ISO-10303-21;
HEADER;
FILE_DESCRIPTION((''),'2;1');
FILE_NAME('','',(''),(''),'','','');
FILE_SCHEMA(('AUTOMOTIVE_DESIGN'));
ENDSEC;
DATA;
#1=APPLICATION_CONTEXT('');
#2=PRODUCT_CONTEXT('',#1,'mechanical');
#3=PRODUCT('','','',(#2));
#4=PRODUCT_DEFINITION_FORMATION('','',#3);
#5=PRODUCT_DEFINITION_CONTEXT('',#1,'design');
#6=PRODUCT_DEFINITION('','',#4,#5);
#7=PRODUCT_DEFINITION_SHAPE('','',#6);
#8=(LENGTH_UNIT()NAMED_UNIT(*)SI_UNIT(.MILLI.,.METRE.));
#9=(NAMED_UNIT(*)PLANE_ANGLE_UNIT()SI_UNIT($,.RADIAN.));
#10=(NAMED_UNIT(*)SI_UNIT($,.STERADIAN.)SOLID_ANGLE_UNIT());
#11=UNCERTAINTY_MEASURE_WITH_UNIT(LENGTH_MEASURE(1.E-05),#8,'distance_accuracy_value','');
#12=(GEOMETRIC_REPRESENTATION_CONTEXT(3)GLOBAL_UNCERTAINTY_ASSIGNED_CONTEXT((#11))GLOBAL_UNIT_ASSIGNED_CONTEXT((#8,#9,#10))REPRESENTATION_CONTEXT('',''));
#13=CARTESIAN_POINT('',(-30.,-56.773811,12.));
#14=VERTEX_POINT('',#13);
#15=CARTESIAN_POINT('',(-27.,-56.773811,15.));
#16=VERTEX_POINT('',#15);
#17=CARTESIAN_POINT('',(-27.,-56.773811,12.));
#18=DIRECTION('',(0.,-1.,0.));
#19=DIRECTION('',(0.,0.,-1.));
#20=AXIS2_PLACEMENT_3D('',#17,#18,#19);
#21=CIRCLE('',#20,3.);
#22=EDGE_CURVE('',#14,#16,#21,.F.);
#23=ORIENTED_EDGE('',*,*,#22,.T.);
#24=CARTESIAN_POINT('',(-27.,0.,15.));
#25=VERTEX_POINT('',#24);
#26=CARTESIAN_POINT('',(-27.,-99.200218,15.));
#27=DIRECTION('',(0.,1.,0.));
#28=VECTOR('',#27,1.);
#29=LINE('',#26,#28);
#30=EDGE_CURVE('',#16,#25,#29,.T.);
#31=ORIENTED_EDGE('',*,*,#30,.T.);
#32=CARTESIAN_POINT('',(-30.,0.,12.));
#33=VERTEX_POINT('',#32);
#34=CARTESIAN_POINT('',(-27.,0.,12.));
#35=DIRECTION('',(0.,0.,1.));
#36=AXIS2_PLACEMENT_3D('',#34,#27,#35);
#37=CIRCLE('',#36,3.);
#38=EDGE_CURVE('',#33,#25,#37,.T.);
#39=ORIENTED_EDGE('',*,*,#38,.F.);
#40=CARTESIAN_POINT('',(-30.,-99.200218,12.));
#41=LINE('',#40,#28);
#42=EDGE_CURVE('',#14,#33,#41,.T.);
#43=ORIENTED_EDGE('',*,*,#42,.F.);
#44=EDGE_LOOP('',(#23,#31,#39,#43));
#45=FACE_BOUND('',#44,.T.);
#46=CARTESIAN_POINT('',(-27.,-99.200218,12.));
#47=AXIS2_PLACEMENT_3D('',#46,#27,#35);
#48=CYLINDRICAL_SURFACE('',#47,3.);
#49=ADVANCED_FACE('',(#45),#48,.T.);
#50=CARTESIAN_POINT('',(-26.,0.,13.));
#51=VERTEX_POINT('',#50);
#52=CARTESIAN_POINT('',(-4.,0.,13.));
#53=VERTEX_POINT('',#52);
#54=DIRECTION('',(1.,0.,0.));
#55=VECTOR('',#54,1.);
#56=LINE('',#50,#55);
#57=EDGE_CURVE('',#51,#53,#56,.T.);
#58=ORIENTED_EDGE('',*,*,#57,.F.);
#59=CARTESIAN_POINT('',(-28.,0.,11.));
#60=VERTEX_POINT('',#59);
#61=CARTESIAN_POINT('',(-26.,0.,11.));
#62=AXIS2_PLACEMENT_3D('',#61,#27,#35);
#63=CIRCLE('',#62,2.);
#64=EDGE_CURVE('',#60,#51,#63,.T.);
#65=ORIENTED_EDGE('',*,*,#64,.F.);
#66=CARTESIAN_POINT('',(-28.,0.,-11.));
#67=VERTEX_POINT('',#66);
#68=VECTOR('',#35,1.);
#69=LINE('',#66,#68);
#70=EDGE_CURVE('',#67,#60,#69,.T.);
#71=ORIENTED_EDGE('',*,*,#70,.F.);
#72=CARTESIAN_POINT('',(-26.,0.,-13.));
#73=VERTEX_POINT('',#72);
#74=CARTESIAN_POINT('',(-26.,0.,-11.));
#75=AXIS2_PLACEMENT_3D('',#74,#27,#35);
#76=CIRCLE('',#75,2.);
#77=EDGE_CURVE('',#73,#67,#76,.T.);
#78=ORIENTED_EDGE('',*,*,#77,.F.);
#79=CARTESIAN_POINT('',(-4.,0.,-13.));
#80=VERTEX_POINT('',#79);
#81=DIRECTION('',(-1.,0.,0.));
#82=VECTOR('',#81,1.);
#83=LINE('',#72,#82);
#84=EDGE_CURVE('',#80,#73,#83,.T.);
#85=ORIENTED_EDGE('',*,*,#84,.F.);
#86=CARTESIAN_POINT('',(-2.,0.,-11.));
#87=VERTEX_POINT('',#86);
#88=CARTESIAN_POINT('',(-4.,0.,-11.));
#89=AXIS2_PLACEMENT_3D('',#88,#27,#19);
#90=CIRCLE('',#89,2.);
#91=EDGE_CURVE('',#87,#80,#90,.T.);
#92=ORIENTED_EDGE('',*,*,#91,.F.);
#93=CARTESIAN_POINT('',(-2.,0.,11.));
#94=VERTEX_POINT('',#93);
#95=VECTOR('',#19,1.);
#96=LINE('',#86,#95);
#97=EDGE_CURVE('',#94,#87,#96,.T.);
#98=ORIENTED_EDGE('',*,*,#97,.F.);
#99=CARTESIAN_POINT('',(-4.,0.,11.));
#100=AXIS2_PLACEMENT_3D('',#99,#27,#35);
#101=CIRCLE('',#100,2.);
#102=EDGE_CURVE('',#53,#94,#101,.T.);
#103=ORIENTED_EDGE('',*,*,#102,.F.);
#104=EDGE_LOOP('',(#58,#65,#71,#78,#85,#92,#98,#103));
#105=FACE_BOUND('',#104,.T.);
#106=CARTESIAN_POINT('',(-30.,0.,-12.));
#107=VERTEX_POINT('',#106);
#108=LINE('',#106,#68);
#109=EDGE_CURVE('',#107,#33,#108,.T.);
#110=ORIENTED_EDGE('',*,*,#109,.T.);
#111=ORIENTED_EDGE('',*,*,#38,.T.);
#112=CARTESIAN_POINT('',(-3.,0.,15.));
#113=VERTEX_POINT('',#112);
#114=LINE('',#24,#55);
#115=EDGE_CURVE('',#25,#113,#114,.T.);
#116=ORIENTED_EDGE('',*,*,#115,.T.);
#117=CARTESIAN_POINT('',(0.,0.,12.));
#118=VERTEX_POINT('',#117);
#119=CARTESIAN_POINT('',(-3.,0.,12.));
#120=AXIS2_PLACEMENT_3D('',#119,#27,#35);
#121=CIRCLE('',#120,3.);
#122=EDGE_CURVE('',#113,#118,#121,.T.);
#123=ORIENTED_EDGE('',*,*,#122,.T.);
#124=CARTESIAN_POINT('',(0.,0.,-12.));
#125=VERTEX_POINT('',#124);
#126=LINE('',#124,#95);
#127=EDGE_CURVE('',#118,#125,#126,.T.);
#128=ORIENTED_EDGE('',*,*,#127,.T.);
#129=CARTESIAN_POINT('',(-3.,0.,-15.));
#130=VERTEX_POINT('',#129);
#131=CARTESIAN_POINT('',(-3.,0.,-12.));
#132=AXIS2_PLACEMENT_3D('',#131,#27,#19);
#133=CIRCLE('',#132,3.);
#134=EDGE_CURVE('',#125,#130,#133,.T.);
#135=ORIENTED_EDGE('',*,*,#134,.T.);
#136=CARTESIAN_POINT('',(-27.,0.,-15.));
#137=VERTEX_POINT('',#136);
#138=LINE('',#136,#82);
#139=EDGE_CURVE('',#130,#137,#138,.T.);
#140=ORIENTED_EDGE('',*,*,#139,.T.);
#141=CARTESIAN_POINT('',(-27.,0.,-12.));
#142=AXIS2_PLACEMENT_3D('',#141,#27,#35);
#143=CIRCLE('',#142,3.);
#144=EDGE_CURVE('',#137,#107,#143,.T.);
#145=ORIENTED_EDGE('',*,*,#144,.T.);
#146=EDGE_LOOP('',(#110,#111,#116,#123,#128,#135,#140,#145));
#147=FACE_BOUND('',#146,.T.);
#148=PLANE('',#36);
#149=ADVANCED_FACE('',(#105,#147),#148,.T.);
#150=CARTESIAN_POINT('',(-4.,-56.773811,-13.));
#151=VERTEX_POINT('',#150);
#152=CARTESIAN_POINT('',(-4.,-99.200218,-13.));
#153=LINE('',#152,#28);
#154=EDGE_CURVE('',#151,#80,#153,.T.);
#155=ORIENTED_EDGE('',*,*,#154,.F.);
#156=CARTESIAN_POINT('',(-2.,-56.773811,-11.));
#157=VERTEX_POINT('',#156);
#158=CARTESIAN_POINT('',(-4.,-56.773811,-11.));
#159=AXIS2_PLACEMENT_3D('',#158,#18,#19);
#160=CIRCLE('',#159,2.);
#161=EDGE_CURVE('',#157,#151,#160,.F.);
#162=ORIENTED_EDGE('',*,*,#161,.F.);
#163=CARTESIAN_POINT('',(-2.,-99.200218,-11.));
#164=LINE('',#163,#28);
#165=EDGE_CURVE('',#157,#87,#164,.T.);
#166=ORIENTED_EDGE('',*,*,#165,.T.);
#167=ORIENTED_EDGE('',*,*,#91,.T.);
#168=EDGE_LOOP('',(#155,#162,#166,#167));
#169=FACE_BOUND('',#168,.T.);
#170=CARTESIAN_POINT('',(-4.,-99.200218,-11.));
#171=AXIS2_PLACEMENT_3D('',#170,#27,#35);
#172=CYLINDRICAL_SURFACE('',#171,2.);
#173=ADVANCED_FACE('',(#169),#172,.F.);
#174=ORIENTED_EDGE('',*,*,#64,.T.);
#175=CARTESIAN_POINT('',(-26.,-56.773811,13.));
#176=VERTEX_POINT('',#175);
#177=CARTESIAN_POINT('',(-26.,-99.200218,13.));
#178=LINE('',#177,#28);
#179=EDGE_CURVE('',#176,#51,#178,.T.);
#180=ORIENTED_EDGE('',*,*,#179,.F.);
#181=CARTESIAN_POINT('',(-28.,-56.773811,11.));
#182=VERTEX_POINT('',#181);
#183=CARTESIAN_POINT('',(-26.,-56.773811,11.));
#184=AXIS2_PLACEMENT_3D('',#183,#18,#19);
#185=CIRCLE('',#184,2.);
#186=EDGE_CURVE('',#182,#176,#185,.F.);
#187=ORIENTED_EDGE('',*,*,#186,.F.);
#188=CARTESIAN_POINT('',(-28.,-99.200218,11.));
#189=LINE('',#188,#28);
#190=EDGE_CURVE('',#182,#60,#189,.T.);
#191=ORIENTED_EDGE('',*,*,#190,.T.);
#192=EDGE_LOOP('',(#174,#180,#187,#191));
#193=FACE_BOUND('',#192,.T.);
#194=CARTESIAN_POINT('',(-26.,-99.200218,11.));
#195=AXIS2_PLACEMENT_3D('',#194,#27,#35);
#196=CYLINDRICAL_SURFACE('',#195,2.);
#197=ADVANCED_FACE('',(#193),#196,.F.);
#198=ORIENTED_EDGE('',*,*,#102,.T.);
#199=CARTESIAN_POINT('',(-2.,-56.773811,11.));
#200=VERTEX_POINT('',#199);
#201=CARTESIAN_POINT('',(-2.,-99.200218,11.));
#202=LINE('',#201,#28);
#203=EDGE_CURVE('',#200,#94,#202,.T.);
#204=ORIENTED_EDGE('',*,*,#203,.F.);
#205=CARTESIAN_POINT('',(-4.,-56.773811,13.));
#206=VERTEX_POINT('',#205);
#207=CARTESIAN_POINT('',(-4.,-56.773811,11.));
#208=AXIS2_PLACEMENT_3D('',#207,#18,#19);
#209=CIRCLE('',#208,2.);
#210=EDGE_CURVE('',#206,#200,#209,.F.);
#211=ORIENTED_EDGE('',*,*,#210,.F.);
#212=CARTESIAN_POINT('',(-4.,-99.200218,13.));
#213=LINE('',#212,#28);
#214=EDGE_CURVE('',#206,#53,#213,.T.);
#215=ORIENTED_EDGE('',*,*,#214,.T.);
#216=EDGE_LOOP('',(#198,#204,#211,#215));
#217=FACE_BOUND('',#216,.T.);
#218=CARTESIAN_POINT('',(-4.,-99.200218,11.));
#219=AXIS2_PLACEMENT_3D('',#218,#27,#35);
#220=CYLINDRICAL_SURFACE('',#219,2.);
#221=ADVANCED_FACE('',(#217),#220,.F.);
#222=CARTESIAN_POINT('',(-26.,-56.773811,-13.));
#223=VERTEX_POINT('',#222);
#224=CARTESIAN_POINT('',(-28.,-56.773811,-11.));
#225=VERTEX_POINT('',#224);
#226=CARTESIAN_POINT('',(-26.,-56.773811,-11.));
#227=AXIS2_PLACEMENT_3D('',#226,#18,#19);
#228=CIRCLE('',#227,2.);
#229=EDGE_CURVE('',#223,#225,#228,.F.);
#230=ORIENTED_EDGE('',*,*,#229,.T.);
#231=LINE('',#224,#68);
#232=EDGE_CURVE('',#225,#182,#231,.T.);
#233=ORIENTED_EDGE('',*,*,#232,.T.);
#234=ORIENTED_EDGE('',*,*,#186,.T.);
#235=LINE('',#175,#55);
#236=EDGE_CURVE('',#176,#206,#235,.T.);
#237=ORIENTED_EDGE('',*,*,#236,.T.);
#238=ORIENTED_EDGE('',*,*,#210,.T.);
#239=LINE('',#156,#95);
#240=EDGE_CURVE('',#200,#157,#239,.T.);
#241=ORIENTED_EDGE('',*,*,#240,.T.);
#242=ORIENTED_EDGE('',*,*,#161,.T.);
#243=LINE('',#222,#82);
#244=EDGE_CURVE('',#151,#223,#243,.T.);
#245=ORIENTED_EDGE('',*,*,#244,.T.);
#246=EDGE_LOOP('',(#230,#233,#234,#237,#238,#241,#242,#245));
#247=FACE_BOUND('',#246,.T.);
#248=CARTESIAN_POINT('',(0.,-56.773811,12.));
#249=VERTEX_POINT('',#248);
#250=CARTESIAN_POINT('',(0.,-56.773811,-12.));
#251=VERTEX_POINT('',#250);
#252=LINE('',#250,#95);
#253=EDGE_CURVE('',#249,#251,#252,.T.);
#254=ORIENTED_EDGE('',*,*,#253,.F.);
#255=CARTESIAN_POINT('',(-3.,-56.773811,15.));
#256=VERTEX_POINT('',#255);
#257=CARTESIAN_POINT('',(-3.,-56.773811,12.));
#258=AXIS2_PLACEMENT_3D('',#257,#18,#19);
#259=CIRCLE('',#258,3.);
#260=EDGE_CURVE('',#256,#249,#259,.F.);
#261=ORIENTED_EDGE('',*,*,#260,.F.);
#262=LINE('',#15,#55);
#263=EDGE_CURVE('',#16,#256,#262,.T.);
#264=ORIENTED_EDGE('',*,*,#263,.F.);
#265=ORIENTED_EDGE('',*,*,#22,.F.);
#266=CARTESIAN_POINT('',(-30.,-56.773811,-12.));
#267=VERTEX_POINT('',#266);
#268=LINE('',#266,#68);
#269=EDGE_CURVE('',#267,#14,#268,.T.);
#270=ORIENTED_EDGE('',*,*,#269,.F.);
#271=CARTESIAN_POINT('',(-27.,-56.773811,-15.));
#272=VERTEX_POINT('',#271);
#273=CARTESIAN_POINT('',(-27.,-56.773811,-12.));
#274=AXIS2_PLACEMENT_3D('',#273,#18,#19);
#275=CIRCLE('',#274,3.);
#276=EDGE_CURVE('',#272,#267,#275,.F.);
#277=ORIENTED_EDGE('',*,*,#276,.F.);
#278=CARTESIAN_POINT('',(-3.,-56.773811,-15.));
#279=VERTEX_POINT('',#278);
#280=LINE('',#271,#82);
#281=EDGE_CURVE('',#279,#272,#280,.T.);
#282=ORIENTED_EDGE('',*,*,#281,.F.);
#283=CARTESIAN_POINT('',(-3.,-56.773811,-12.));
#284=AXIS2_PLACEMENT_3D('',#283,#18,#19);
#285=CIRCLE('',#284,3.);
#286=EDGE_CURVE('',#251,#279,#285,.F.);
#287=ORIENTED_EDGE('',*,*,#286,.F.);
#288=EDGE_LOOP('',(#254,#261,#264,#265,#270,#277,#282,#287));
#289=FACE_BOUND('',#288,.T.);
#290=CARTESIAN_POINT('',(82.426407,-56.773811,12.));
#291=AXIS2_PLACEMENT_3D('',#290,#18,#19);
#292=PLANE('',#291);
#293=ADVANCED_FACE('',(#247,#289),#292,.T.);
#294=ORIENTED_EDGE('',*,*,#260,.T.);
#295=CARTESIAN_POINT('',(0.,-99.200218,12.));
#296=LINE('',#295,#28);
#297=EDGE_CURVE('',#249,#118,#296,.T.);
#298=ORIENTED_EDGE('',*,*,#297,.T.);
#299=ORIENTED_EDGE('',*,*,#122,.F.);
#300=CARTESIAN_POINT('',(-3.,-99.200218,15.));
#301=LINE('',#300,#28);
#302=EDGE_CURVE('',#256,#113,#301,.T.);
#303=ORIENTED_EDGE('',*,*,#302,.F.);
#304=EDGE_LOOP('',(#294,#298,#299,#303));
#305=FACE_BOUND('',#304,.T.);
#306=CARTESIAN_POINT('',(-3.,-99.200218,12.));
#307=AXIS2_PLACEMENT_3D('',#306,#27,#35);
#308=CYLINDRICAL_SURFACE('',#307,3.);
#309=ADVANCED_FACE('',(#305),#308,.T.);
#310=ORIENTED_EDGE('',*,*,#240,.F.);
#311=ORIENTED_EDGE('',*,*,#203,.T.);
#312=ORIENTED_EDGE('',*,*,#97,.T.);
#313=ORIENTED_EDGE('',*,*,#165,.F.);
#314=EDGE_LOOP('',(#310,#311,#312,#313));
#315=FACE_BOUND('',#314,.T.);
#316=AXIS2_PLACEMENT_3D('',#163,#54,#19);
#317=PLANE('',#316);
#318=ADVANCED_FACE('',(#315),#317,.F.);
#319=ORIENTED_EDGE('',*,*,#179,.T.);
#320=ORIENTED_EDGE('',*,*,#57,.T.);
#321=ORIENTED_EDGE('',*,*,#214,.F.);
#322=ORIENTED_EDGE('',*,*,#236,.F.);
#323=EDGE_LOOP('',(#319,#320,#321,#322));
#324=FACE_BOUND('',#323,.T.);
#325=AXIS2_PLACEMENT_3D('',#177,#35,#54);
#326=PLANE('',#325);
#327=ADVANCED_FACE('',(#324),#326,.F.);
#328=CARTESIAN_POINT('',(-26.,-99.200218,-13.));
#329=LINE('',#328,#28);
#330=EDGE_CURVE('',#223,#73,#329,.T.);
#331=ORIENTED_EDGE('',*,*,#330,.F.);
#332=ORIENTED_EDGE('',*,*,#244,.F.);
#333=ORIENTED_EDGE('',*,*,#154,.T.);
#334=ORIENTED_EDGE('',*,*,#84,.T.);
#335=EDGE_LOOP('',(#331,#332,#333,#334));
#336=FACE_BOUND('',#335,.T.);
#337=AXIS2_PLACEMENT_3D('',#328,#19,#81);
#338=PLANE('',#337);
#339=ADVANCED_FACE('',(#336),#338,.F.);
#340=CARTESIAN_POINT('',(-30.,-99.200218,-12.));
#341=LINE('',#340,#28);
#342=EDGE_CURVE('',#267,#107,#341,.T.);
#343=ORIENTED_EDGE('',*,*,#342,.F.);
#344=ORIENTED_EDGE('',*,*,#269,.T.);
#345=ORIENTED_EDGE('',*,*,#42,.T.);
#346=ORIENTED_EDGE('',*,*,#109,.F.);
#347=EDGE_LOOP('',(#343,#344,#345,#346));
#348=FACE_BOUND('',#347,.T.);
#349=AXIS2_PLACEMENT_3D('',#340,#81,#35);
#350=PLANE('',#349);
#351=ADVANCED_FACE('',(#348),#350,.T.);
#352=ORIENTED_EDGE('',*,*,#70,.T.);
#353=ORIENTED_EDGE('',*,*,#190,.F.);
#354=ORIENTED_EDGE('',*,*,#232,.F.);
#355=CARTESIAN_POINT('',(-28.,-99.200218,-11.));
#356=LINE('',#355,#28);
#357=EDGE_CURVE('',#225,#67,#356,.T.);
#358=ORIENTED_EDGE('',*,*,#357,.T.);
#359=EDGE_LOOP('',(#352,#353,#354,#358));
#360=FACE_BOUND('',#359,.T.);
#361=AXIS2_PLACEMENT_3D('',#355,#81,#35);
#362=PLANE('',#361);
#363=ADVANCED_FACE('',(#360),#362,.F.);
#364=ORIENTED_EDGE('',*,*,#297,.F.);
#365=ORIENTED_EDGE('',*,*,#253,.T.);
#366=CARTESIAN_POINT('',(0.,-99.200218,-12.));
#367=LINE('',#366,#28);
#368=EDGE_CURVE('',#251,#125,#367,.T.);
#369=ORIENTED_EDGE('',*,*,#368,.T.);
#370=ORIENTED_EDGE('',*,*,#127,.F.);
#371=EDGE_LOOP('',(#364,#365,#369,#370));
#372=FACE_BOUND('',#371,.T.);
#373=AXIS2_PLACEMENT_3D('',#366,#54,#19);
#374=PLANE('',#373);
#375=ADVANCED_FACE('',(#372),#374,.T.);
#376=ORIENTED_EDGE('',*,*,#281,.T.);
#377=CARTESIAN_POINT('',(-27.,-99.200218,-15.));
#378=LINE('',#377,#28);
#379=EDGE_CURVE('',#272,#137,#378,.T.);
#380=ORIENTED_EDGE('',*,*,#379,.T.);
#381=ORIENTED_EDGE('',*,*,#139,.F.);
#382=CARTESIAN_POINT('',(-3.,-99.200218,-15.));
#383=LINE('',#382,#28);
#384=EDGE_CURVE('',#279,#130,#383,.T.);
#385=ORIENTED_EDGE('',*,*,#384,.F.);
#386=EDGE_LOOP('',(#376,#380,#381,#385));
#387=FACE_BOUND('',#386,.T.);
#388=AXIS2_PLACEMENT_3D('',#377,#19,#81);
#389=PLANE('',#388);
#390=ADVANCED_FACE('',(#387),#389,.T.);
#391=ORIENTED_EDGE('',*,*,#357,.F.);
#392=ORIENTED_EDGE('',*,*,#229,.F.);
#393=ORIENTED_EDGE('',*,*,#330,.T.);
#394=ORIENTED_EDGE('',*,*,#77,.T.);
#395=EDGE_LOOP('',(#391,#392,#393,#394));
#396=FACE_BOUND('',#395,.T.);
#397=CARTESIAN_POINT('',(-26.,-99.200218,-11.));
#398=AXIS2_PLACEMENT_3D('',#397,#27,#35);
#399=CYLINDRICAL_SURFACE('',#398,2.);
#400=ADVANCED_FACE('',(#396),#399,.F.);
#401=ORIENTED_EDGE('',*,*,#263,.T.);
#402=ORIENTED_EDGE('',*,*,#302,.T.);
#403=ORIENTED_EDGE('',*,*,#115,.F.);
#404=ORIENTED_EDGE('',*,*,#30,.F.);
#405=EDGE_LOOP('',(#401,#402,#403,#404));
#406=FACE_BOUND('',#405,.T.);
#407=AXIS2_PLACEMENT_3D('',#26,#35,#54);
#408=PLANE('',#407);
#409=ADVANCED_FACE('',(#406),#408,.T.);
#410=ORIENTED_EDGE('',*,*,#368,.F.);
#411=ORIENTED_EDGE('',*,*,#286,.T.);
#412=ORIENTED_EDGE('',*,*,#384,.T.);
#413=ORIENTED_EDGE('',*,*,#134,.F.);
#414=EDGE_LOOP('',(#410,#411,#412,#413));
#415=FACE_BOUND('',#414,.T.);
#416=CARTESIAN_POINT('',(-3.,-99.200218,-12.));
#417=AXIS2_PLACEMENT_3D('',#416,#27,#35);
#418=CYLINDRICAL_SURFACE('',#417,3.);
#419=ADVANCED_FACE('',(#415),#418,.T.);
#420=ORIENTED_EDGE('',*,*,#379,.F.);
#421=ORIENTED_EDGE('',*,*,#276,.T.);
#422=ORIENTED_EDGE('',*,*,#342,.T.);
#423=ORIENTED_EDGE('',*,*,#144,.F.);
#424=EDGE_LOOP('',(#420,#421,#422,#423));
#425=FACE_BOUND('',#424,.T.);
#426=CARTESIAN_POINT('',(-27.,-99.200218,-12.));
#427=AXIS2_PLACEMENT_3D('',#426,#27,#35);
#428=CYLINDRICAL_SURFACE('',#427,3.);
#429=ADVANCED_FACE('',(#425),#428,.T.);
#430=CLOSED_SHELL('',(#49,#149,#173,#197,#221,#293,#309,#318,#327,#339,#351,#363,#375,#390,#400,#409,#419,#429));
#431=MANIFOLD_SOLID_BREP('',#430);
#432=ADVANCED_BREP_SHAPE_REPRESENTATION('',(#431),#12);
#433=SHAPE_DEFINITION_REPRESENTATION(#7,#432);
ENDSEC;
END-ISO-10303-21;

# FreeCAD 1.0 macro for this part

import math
import FreeCAD as App
import Part
import Sketcher

doc = App.newDocument("Part")
body = doc.addObject("PartDesign::Body", "Body")

sketch1 = body.newObject("Sketcher::SketchObject", "Sketch")
sketch1.AttachmentSupport = (doc.getObject("XZ_Plane"), [""])
sketch1.MapMode = "FlatFace"
sketch1.addGeometry(Part.LineSegment(App.Vector(-3, -15, 0), App.Vector(-27, -15, 0)), False)
sketch1.addGeometry(Part.ArcOfCircle(Part.Circle(App.Vector(-27, -12, 0), App.Vector(0, 0, 1), 3), math.radians(180), math.radians(270)), False)
sketch1.addGeometry(Part.LineSegment(App.Vector(-30, -12, 0), App.Vector(-30, 12, 0)), False)
sketch1.addGeometry(Part.ArcOfCircle(Part.Circle(App.Vector(-27, 12, 0), App.Vector(0, 0, 1), 3), math.radians(90), math.radians(180)), False)
sketch1.addGeometry(Part.LineSegment(App.Vector(-27, 15, 0), App.Vector(-3, 15, 0)), False)
sketch1.addGeometry(Part.ArcOfCircle(Part.Circle(App.Vector(-3, 12, 0), App.Vector(0, 0, 1), 3), math.radians(0), math.radians(90)), False)
sketch1.addGeometry(Part.LineSegment(App.Vector(0, 12, 0), App.Vector(0, -12, 0)), False)
sketch1.addGeometry(Part.ArcOfCircle(Part.Circle(App.Vector(-3, -12, 0), App.Vector(0, 0, 1), 3), math.radians(-90), math.radians(0)), False)
sketch1.addGeometry(Part.LineSegment(App.Vector(-26, -13, 0), App.Vector(-4, -13, 0)), False)
sketch1.addGeometry(Part.ArcOfCircle(Part.Circle(App.Vector(-4, -11, 0), App.Vector(0, 0, 1), 2), math.radians(-90), math.radians(0)), False)
sketch1.addGeometry(Part.LineSegment(App.Vector(-2, -11, 0), App.Vector(-2, 11, 0)), False)
sketch1.addGeometry(Part.ArcOfCircle(Part.Circle(App.Vector(-4, 11, 0), App.Vector(0, 0, 1), 2), math.radians(0), math.radians(90)), False)
sketch1.addGeometry(Part.LineSegment(App.Vector(-4, 13, 0), App.Vector(-26, 13, 0)), False)
sketch1.addGeometry(Part.ArcOfCircle(Part.Circle(App.Vector(-26, 11, 0), App.Vector(0, 0, 1), 2), math.radians(90), math.radians(180)), False)
sketch1.addGeometry(Part.LineSegment(App.Vector(-28, 11, 0), App.Vector(-28, -11, 0)), False)
sketch1.addGeometry(Part.ArcOfCircle(Part.Circle(App.Vector(-26, -11, 0), App.Vector(0, 0, 1), 2), math.radians(-180), math.radians(-90)), False)
sketch1.addConstraint(Sketcher.Constraint("Tangent", 0, 2, 1, 2))
sketch1.addConstraint(Sketcher.Constraint("Tangent", 1, 1, 2, 1))
sketch1.addConstraint(Sketcher.Constraint("Tangent", 2, 2, 3, 2))
sketch1.addConstraint(Sketcher.Constraint("Tangent", 3, 1, 4, 1))
sketch1.addConstraint(Sketcher.Constraint("Tangent", 4, 2, 5, 2))
sketch1.addConstraint(Sketcher.Constraint("Tangent", 5, 1, 6, 1))
sketch1.addConstraint(Sketcher.Constraint("Tangent", 6, 2, 7, 2))
sketch1.addConstraint(Sketcher.Constraint("Tangent", 7, 1, 0, 1))
sketch1.addConstraint(Sketcher.Constraint("Tangent", 8, 2, 9, 1))
sketch1.addConstraint(Sketcher.Constraint("Tangent", 9, 2, 10, 1))
sketch1.addConstraint(Sketcher.Constraint("Tangent", 10, 2, 11, 1))
sketch1.addConstraint(Sketcher.Constraint("Tangent", 11, 2, 12, 1))
sketch1.addConstraint(Sketcher.Constraint("Tangent", 12, 2, 13, 1))
sketch1.addConstraint(Sketcher.Constraint("Tangent", 13, 2, 14, 1))
sketch1.addConstraint(Sketcher.Constraint("Tangent", 14, 2, 15, 1))
sketch1.addConstraint(Sketcher.Constraint("Tangent", 15, 2, 8, 1))
sketch1.addConstraint(Sketcher.Constraint("Horizontal", 0))
sketch1.addConstraint(Sketcher.Constraint("Vertical", 2))
sketch1.addConstraint(Sketcher.Constraint("Horizontal", 4))
sketch1.addConstraint(Sketcher.Constraint("Vertical", 6))
sketch1.addConstraint(Sketcher.Constraint("Horizontal", 8))
sketch1.addConstraint(Sketcher.Constraint("Vertical", 10))
sketch1.addConstraint(Sketcher.Constraint("Horizontal", 12))
sketch1.addConstraint(Sketcher.Constraint("Vertical", 14))
sketch1.addConstraint(Sketcher.Constraint("Equal", 1, 3))
sketch1.addConstraint(Sketcher.Constraint("Equal", 3, 5))
sketch1.addConstraint(Sketcher.Constraint("Equal", 5, 7))
sketch1.addConstraint(Sketcher.Constraint("Equal", 9, 11))
sketch1.addConstraint(Sketcher.Constraint("Equal", 11, 13))
sketch1.addConstraint(Sketcher.Constraint("Equal", 13, 15))
sketch1.addConstraint(Sketcher.Constraint("Symmetric", 5, 1, 6, 2, -1, 1))
sketch1.addConstraint(Sketcher.Constraint("Equal", 4, 2))
sketch1.addConstraint(Sketcher.Constraint("Equal", 12, 10))
sketch1.addConstraint(Sketcher.Constraint("Radius", 1, 3.0))
sketch1.addConstraint(Sketcher.Constraint("Radius", 9, 2.0))
sketch1.addConstraint(Sketcher.Constraint("DistanceX", 0, 2, 0, 1, 24.0))
sketch1.addConstraint(Sketcher.Constraint("DistanceX", 8, 1, 8, 2, 22.0))
sketch1.addConstraint(Sketcher.Constraint("DistanceX", 9, 3, -1, 1, 4.0))
sketch1.addConstraint(Sketcher.Constraint("DistanceY", 9, 3, -1, 1, 11.0))
pad1 = body.newObject("PartDesign::Pad", "Pad")
pad1.Profile = sketch1
pad1.Length = 56.773811

doc.recompute()
